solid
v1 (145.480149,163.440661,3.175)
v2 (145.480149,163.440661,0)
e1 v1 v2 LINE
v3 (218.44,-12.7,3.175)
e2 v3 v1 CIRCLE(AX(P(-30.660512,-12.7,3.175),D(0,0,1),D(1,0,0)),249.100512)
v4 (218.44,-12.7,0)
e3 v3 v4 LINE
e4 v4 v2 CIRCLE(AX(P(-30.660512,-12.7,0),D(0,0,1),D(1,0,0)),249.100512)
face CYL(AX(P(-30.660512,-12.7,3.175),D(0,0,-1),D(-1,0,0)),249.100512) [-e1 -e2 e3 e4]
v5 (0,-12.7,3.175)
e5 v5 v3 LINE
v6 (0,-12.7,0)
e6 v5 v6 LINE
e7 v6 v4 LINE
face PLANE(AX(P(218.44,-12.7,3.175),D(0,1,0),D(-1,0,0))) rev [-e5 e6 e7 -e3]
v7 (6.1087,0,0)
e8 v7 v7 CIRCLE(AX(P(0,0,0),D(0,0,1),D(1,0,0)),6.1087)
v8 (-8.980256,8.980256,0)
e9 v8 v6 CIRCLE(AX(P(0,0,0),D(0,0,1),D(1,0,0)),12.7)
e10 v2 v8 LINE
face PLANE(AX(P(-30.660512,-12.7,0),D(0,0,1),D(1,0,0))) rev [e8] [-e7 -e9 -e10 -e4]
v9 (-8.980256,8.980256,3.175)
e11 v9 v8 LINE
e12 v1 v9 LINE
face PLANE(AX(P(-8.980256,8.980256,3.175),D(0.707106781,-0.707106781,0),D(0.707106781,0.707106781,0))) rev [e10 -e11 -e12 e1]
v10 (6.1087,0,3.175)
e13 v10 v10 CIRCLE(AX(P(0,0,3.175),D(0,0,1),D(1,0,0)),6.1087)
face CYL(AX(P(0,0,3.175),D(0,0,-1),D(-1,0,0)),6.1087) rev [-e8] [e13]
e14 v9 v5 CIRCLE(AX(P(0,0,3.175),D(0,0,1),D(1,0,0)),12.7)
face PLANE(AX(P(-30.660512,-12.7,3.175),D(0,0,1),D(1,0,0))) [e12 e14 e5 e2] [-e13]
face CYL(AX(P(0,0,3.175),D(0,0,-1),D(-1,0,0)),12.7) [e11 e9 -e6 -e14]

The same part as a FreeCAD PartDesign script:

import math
import FreeCAD as App
import Part
import Sketcher
from FreeCAD import Vector
Q = App.Units.Quantity

doc = App.newDocument("Part")
params = doc.addObject("Spreadsheet::Sheet", "Params")
for row, (alias, value) in enumerate([
    ("sketch1_radius", "0.5 in"),
    ("sketch1_diameter", "0.481 in"),
    ("sketch1_width", "8.6 in"),
    ("sketch1_length", "8.6 in"),
    ("pad1_length", "0.125 in"),
], start=1):
    params.set(f"A{row}", alias)
    params.set(f"B{row}", "=" + value)
    params.setAlias(f"B{row}", alias)

body = doc.addObject("PartDesign::Body", "Body")

# Sketch on XY plane
sketch1 = doc.addObject("Sketcher::SketchObject", "Sketch")
body.addObject(sketch1)
sketch1.AttachmentSupport = (doc.XY_Plane, [""])
sketch1.MapMode = "FlatFace"
sketch1.addGeometry(Part.LineSegment(Vector(145, 163, 0), Vector(-9, 9, 0)), False)
sketch1.addGeometry(Part.ArcOfCircle(Part.Circle(Vector(0, 0, 0), Vector(0, 0, 1), 13), math.radians(135), math.radians(270)), False)
sketch1.addGeometry(Part.LineSegment(Vector(0, -13, 0), Vector(218, -13, 0)), False)
sketch1.addGeometry(Part.ArcOfCircle(Part.Circle(Vector(-31, -13, 0), Vector(0, 0, 1), 249), math.radians(0), math.radians(45)), False)
sketch1.addGeometry(Part.Circle(Vector(0, 0, 0), Vector(0, 0, 1), 6), False)
sketch1.addConstraint(Sketcher.Constraint("Tangent", 0, 2, 1, 1))
sketch1.addConstraint(Sketcher.Constraint("Tangent", 1, 2, 2, 1))
sketch1.addConstraint(Sketcher.Constraint("Coincident", 2, 2, 3, 1))
sketch1.addConstraint(Sketcher.Constraint("Coincident", 3, 2, 0, 1))
sketch1.addConstraint(Sketcher.Constraint("Horizontal", 2))
sketch1.addConstraint(Sketcher.Constraint("Coincident", 1, 3, -1, 1))
sketch1.addConstraint(Sketcher.Constraint("Coincident", 4, 3, -1, 1))
sketch1.addConstraint(Sketcher.Constraint("Horizontal", 3, 3, 1, 2))
sketch1.addConstraint(Sketcher.Constraint("Radius", 1, Q("0.5 in")))
sketch1.addConstraint(Sketcher.Constraint("Diameter", 4, Q("0.481 in")))
sketch1.addConstraint(Sketcher.Constraint("DistanceX", 2, 1, 2, 2, Q("8.6 in")))
sketch1.addConstraint(Sketcher.Constraint("Angle", 0, Q("-135 deg")))
sketch1.addConstraint(Sketcher.Constraint("Distance", 0, Q("8.6 in")))
sketch1.setExpression("Constraints[8]", "Params.sketch1_radius")
sketch1.setExpression("Constraints[9]", "Params.sketch1_diameter")
sketch1.setExpression("Constraints[10]", "Params.sketch1_width")
sketch1.setExpression("Constraints[12]", "Params.sketch1_length")
pad1 = doc.addObject("PartDesign::Pad", "Pad")
body.addObject(pad1)
pad1.Profile = sketch1
pad1.setExpression("Length", "Params.pad1_length")

doc.recompute()
